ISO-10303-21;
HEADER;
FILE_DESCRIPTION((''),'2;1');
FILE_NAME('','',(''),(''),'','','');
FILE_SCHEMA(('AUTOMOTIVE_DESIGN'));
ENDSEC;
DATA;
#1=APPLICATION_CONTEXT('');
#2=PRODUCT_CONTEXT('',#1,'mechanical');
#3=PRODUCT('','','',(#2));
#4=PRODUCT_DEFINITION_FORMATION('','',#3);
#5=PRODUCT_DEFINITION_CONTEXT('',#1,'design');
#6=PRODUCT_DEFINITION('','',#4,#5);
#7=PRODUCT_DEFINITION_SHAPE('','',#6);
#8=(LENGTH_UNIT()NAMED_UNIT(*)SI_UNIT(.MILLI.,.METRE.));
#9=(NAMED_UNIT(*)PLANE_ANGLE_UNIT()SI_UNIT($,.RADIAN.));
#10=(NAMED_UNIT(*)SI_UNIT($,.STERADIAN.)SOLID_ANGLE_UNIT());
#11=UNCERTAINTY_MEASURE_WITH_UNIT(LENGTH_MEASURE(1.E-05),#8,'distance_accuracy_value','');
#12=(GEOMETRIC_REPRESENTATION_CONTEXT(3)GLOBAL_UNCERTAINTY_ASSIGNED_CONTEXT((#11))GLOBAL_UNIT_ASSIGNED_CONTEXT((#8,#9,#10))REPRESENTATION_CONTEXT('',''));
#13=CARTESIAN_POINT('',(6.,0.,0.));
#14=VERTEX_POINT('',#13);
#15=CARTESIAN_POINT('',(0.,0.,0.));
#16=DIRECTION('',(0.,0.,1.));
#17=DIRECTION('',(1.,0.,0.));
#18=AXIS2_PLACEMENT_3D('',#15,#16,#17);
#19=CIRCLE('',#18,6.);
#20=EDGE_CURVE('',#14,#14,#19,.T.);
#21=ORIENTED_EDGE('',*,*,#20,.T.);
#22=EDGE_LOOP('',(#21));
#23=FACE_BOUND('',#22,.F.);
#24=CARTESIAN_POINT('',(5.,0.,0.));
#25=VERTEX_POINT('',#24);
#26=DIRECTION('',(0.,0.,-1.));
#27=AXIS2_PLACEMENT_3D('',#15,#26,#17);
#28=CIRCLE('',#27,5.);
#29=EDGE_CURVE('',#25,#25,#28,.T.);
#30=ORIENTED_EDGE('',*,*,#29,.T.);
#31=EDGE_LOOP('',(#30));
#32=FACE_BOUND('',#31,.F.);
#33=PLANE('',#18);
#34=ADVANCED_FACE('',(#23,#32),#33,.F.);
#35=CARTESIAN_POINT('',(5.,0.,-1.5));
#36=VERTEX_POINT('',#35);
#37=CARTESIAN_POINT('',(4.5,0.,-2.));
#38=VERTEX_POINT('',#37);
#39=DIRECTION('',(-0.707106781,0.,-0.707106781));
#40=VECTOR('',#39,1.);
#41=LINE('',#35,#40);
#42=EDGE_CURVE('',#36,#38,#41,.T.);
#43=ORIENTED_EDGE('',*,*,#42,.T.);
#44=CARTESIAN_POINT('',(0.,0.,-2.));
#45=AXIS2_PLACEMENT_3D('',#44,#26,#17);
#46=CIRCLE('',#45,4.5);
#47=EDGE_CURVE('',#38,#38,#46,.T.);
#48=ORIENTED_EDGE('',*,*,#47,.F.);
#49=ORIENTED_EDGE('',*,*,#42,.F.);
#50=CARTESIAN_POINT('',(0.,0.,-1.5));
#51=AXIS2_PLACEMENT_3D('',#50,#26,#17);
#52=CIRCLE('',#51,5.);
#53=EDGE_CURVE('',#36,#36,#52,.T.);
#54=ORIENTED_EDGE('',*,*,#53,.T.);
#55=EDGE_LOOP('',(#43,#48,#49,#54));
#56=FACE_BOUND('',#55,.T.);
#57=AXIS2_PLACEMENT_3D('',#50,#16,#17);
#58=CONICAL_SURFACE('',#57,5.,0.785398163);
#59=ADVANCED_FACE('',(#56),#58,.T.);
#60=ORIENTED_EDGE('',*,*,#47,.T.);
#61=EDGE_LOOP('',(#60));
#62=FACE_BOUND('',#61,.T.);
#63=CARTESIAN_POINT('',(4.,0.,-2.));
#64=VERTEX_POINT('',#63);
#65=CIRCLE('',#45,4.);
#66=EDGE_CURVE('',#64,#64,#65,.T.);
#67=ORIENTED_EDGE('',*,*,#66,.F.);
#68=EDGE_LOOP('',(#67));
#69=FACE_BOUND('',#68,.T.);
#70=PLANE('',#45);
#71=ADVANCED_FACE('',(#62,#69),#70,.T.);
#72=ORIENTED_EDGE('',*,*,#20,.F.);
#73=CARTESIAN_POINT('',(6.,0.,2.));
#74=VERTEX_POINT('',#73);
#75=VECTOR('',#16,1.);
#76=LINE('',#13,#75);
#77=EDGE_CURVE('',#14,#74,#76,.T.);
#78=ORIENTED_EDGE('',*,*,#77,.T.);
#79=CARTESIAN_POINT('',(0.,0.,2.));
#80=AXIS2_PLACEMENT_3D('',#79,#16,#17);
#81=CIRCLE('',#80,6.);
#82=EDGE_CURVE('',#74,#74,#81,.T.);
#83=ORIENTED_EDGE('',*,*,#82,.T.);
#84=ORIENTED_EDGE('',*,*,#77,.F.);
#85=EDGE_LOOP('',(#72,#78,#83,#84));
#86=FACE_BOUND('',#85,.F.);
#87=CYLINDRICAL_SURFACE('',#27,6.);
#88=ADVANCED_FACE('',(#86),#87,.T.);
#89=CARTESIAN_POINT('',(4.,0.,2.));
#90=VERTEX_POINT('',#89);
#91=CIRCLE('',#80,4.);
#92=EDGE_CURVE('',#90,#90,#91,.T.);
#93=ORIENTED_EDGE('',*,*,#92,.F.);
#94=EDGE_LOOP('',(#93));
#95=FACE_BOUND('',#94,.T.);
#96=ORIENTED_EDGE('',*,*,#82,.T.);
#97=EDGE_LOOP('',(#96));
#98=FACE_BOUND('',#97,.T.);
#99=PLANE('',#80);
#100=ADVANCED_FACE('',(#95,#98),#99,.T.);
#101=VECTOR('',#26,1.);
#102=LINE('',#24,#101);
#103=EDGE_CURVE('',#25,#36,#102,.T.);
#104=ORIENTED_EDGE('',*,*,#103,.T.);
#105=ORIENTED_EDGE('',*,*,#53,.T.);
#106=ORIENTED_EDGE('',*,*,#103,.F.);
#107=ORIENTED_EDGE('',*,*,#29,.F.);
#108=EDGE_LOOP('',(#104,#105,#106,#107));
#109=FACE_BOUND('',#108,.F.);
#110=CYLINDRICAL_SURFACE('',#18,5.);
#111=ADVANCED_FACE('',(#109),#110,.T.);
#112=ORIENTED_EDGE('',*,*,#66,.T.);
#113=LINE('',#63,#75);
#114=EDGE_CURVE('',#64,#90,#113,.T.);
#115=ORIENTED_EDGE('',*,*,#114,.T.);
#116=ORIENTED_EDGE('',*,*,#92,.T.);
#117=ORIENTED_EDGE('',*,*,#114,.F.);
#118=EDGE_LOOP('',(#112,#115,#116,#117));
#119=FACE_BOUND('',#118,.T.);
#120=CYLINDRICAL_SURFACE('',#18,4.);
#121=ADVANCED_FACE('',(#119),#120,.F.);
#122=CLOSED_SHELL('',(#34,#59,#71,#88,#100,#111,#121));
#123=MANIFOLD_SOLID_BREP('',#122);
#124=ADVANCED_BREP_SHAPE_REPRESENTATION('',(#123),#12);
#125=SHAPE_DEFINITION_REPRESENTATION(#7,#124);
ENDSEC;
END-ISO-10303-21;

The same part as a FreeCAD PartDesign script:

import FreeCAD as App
import Part
import Sketcher


def edges_at(feature, points):
    """Names of the edges that pass closest to the given points."""
    edges = feature.Shape.Edges
    near = lambda p: min(range(len(edges)), key=lambda i: edges[i].distToShape(Part.Vertex(*p))[0])
    return sorted({f"Edge{near(p) + 1}" for p in points})

doc = App.newDocument("Part")
params = doc.addObject("Spreadsheet::Sheet", "Params")
for row, (alias, value) in enumerate([
    ("sketch1_diameter", "12 mm"),
    ("sketch1_diameter2", "8 mm"),
    ("pad1_length", "2 mm"),
    ("sketch2_diameter", "10 mm"),
    ("sketch2_diameter2", "8 mm"),
    ("pad2_length", "2 mm"),
    ("chamfer_size", "0.5 mm"),
], start=1):
    params.set(f"A{row}", alias)
    params.set(f"B{row}", "=" + value)
    params.setAlias(f"B{row}", alias)

body = doc.addObject("PartDesign::Body", "Body")

# Sketch on XY plane
sketch1 = body.newObject("Sketcher::SketchObject", "Sketch")
sketch1.AttachmentSupport = (doc.getObject("XY_Plane"), [""])
sketch1.MapMode = "FlatFace"
sketch1.addGeometry([
    Part.Circle(App.Vector(0, 0, 0), App.Vector(0, 0, 1), 6),
    Part.Circle(App.Vector(0, 0, 0), App.Vector(0, 0, 1), 4),
], False)
sketch1.addConstraint([
    Sketcher.Constraint("Coincident", 0, 3, -1, 1),
    Sketcher.Constraint("Coincident", 1, 3, -1, 1),
    Sketcher.Constraint("Diameter", 0, 12.0),
    Sketcher.Constraint("Diameter", 1, 8.0),
])
sketch1.setExpression("Constraints[2]", "Params.sketch1_diameter")
sketch1.setExpression("Constraints[3]", "Params.sketch1_diameter2")
pad1 = body.newObject("PartDesign::Pad", "Pad")
pad1.Profile = sketch1
pad1.setExpression("Length", "Params.pad1_length")

# Sketch on XY plane
sketch2 = body.newObject("Sketcher::SketchObject", "Sketch001")
sketch2.AttachmentSupport = (doc.getObject("XY_Plane"), [""])
sketch2.MapMode = "FlatFace"
sketch2.addGeometry([
    Part.Circle(App.Vector(0, 0, 0), App.Vector(0, 0, 1), 5),
    Part.Circle(App.Vector(0, 0, 0), App.Vector(0, 0, 1), 4),
], False)
sketch2.addConstraint([
    Sketcher.Constraint("Coincident", 0, 3, -1, 1),
    Sketcher.Constraint("Coincident", 1, 3, -1, 1),
    Sketcher.Constraint("Diameter", 0, 10.0),
    Sketcher.Constraint("Diameter", 1, 8.0),
])
sketch2.setExpression("Constraints[2]", "Params.sketch2_diameter")
sketch2.setExpression("Constraints[3]", "Params.sketch2_diameter2")
pad2 = body.newObject("PartDesign::Pad", "Pad001")
pad2.Profile = sketch2
pad2.setExpression("Length", "Params.pad2_length")
pad2.Reversed = True
doc.recompute()

chamfer = body.newObject("PartDesign::Chamfer", "Chamfer")
chamfer.Base = (pad2, edges_at(pad2, [(-5, 0, -2)]))
chamfer.setExpression("Size", "Params.chamfer_size")

doc.recompute()
